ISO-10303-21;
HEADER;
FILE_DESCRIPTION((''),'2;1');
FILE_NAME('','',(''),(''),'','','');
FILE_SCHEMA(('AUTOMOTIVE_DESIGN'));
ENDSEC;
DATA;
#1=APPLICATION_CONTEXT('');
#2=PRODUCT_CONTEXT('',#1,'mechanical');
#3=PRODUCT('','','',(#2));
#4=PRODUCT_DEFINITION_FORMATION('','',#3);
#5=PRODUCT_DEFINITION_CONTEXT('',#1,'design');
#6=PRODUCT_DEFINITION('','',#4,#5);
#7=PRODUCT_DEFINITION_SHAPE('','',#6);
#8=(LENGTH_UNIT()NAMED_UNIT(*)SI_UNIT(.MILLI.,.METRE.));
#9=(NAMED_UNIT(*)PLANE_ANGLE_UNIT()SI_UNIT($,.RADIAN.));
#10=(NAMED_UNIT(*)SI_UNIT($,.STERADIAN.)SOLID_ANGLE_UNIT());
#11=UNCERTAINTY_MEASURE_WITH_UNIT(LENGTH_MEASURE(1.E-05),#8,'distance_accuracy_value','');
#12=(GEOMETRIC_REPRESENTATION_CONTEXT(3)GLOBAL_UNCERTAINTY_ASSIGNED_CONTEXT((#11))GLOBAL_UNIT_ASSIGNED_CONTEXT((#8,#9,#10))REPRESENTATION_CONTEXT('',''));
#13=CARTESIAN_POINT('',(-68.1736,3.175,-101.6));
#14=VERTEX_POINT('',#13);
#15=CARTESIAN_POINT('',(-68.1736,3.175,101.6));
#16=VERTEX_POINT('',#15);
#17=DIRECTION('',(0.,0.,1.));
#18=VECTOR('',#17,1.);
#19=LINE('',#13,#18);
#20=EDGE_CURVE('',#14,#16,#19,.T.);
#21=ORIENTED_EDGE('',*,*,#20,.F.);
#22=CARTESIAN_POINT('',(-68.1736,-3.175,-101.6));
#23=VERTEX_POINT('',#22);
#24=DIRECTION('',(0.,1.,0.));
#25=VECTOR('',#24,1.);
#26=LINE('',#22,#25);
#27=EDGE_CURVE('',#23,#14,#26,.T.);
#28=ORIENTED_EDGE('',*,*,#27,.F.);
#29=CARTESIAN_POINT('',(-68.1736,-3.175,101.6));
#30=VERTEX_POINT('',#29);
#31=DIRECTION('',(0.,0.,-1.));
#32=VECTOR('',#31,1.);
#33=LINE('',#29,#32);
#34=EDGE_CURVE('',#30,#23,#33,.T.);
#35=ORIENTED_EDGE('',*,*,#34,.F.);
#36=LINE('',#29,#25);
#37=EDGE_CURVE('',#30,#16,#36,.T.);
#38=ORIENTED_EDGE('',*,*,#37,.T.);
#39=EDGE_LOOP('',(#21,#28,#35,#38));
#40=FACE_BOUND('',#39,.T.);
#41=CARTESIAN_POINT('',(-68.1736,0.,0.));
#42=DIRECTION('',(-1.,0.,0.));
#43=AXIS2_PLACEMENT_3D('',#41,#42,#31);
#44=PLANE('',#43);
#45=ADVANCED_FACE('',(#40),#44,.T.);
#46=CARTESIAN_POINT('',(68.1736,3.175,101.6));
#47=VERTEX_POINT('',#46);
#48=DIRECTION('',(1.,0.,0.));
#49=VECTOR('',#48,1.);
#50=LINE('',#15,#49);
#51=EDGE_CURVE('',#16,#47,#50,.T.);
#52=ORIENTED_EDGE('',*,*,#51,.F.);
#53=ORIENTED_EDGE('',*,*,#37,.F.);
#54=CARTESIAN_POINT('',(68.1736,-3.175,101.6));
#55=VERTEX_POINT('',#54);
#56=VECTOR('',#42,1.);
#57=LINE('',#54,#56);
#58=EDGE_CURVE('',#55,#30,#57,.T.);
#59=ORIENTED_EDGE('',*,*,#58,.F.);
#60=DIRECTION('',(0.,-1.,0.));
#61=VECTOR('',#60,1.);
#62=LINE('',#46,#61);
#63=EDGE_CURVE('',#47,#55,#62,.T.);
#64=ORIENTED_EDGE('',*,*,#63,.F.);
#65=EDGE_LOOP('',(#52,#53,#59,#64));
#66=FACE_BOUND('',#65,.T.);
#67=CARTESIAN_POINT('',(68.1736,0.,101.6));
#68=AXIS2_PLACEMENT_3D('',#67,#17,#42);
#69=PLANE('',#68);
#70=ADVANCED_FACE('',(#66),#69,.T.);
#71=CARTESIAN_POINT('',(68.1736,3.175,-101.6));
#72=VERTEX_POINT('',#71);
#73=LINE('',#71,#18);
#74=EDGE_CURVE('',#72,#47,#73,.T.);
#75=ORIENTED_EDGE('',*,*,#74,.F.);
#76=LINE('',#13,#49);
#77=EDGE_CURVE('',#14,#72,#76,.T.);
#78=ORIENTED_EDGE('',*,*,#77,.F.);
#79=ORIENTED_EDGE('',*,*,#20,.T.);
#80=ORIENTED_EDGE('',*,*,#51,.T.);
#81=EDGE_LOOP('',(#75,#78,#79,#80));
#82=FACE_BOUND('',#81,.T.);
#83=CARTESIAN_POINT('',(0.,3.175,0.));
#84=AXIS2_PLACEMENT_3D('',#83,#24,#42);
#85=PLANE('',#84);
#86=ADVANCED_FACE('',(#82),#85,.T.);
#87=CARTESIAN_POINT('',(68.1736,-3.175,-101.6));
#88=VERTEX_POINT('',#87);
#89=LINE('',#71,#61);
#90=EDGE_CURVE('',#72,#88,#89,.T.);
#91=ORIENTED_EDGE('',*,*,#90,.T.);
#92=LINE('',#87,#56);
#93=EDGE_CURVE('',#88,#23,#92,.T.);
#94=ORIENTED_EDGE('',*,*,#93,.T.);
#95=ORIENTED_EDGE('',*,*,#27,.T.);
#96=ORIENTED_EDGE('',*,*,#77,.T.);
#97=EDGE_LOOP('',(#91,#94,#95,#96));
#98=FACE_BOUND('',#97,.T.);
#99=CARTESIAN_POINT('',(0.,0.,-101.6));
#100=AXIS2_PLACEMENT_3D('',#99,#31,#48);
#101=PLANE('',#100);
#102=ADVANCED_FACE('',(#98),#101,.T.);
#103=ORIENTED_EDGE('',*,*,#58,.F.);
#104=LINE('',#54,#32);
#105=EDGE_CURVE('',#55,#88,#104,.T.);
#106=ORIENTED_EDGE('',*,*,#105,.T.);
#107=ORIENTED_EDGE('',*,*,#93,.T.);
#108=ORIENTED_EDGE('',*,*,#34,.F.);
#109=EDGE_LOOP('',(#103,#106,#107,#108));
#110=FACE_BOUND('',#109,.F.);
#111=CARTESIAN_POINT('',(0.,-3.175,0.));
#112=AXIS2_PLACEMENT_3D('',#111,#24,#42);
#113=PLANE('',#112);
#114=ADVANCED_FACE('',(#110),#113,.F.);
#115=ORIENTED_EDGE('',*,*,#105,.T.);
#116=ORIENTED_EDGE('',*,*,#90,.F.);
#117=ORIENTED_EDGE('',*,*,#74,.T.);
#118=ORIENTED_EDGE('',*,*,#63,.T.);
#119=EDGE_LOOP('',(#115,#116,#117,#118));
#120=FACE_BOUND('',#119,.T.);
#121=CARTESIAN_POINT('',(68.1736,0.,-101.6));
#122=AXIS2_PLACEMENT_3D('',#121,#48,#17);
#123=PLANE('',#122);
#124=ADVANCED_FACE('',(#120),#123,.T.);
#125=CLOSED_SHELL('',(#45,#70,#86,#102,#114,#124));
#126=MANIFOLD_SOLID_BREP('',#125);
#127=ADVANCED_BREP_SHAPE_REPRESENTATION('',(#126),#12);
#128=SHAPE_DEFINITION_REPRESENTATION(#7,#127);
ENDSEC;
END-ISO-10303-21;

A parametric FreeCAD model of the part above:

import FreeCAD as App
import Part
import Sketcher
from FreeCAD import Vector
Q = App.Units.Quantity


def add_polygon(sketch, points):
    """Adds a closed chain of lines whose ends are joined by coincident constraints."""
    first, n = sketch.GeometryCount, len(points)
    for a, b in zip(points, points[1:] + points[:1]):
        sketch.addGeometry(Part.LineSegment(App.Vector(*a, 0), App.Vector(*b, 0)), False)
    for i in range(n):
        sketch.addConstraint(Sketcher.Constraint("Coincident", first + i, 2, first + (i + 1) % n, 1))

doc = App.newDocument("Part")
body = doc.addObject("PartDesign::Body", "Body")

sketch1 = body.newObject("Sketcher::SketchObject", "Sketch")
sketch1.AttachmentSupport = (doc.getObject("XZ_Plane"), [""])
sketch1.MapMode = "FlatFace"
add_polygon(sketch1, [(68, -102), (-68, -102), (-68, 102), (68, 102)])
sketch1.addConstraint(Sketcher.Constraint("Horizontal", 0))
sketch1.addConstraint(Sketcher.Constraint("Vertical", 1))
sketch1.addConstraint(Sketcher.Constraint("Horizontal", 2))
sketch1.addConstraint(Sketcher.Constraint("Vertical", 3))
sketch1.addConstraint(Sketcher.Constraint("Symmetric", 0, 2, 2, 2, -1, 1))
sketch1.addConstraint(Sketcher.Constraint("DistanceY", 1, 1, 1, 2, Q("8 in")))
sketch1.addConstraint(Sketcher.Constraint("DistanceX", 0, 2, 0, 1, Q("5.368 in")))
pad1 = body.newObject("PartDesign::Pad", "Pad")
pad1.Profile = sketch1
pad1.Length = Q("0.25 in")
pad1.Midplane = True

doc.recompute()
